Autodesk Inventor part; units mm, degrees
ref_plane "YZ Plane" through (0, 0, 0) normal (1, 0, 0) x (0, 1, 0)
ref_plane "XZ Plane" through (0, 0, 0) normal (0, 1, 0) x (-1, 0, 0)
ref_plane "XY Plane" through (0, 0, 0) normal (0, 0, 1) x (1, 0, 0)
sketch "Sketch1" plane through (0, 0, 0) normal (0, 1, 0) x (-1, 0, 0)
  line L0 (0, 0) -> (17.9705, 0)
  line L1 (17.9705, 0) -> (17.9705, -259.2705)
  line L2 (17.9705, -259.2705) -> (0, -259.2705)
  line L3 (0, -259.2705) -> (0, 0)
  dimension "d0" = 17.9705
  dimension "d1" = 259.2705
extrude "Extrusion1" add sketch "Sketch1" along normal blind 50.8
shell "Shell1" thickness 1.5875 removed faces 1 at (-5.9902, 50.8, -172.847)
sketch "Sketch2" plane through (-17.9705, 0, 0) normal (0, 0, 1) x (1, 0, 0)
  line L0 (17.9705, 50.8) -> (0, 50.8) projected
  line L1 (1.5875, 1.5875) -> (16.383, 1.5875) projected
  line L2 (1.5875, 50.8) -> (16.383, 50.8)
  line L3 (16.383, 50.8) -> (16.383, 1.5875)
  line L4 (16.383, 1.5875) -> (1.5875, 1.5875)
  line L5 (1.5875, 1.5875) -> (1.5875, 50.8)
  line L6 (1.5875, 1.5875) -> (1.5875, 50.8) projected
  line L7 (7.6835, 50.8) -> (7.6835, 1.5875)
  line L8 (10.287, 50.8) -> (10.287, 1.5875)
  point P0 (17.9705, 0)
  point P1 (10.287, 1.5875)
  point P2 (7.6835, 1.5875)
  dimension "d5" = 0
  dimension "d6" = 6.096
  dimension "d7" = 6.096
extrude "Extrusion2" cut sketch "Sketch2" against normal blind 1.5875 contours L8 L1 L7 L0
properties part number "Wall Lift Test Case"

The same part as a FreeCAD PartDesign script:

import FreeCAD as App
import Part
import Sketcher
Q = App.Units.Quantity


def faces_at(feature, points):
    """Names of the faces that lie closest to the given points."""
    faces = feature.Shape.Faces
    near = lambda p: min(range(len(faces)), key=lambda i: faces[i].distToShape(Part.Vertex(*p))[0])
    return sorted({f"Face{near(p) + 1}" for p in points})


def add_polygon(sketch, points):
    """Adds a closed chain of lines whose ends are joined by coincident constraints."""
    first, n = sketch.GeometryCount, len(points)
    for a, b in zip(points, points[1:] + points[:1]):
        sketch.addGeometry(Part.LineSegment(App.Vector(*a, 0), App.Vector(*b, 0)), False)
    for i in range(n):
        sketch.addConstraint(Sketcher.Constraint("Coincident", first + i, 2, first + (i + 1) % n, 1))

doc = App.newDocument("Part")
params = doc.addObject("Spreadsheet::Sheet", "Params")
for row, (alias, value) in enumerate([
    ("pad1_length", "2 in"),
    ("thickness_wall", "0.0625 in"),
    ("sketch2_height", "1.9375 in"),
    ("pocket1_length", "0.0625 in"),
], start=1):
    params.set(f"A{row}", alias)
    params.set(f"B{row}", "=" + value)
    params.setAlias(f"B{row}", alias)

body = doc.addObject("PartDesign::Body", "Body")

# Sketch on XZ plane
sketch1 = body.newObject("Sketcher::SketchObject", "Sketch")
sketch1.AttachmentSupport = (doc.getObject("XZ_Plane"), [""])
sketch1.MapMode = "FlatFace"
add_polygon(sketch1, [(-17.9705, 0), (0, 0), (0, -259.2705), (-17.9705, -259.2705)])  # lines 0-3
sketch1.addConstraint(Sketcher.Constraint("Horizontal", 0))
sketch1.addConstraint(Sketcher.Constraint("Vertical", 1))
sketch1.addConstraint(Sketcher.Constraint("Horizontal", 2))
sketch1.addConstraint(Sketcher.Constraint("Vertical", 3))
sketch1.addConstraint(Sketcher.Constraint("Coincident", 0, 2, -1, 1))
sketch1.addConstraint(Sketcher.Constraint("DistanceX", 0, 1, 0, 2, Q("0.7075 in")))
sketch1.addConstraint(Sketcher.Constraint("DistanceY", 1, 2, 1, 1, Q("10.2075 in")))
pad1 = body.newObject("PartDesign::Pad", "Pad")
pad1.Profile = sketch1
pad1.setExpression("Length", "Params.pad1_length")
pad1.Reversed = True
doc.recompute()

thickness = body.newObject("PartDesign::Thickness", "Thickness")
thickness.Base = (pad1, faces_at(pad1, [(-5.99, 50.8, -172.847)]))
thickness.setExpression("Value", "Params.thickness_wall")
thickness.Reversed = True
thickness.Join = "Intersection"

# Sketch on XY plane
sketch2 = body.newObject("Sketcher::SketchObject", "Sketch001")
sketch2.AttachmentSupport = (doc.getObject("XY_Plane"), [""])
sketch2.MapMode = "FlatFace"
add_polygon(sketch2, [(-7.6835, 1.5875), (-7.6835, 50.8), (-10.287, 50.8), (-10.287, 1.5875)])  # lines 0-3
sketch2.addConstraint(Sketcher.Constraint("Vertical", 0))
sketch2.addConstraint(Sketcher.Constraint("Horizontal", 1))
sketch2.addConstraint(Sketcher.Constraint("Vertical", 2))
sketch2.addConstraint(Sketcher.Constraint("Horizontal", 3))
sketch2.addConstraint(Sketcher.Constraint("DistanceY", -1, 1, 0, 2, Q("2 in")))
sketch2.addConstraint(Sketcher.Constraint("DistanceY", 0, 1, 0, 2, Q("1.9375 in")))
sketch2.addConstraint(Sketcher.Constraint("DistanceX", 1, 2, 1, 1, Q("0.1025 in")))
sketch2.addConstraint(Sketcher.Constraint("DistanceX", 1, 2, -1, 1, Q("0.405 in")))
sketch2.setExpression("Constraints[9]", "Params.sketch2_height")
pocket1 = body.newObject("PartDesign::Pocket", "Pocket")
pocket1.Profile = sketch2
pocket1.setExpression("Length", "Params.pocket1_length")

doc.recompute()
